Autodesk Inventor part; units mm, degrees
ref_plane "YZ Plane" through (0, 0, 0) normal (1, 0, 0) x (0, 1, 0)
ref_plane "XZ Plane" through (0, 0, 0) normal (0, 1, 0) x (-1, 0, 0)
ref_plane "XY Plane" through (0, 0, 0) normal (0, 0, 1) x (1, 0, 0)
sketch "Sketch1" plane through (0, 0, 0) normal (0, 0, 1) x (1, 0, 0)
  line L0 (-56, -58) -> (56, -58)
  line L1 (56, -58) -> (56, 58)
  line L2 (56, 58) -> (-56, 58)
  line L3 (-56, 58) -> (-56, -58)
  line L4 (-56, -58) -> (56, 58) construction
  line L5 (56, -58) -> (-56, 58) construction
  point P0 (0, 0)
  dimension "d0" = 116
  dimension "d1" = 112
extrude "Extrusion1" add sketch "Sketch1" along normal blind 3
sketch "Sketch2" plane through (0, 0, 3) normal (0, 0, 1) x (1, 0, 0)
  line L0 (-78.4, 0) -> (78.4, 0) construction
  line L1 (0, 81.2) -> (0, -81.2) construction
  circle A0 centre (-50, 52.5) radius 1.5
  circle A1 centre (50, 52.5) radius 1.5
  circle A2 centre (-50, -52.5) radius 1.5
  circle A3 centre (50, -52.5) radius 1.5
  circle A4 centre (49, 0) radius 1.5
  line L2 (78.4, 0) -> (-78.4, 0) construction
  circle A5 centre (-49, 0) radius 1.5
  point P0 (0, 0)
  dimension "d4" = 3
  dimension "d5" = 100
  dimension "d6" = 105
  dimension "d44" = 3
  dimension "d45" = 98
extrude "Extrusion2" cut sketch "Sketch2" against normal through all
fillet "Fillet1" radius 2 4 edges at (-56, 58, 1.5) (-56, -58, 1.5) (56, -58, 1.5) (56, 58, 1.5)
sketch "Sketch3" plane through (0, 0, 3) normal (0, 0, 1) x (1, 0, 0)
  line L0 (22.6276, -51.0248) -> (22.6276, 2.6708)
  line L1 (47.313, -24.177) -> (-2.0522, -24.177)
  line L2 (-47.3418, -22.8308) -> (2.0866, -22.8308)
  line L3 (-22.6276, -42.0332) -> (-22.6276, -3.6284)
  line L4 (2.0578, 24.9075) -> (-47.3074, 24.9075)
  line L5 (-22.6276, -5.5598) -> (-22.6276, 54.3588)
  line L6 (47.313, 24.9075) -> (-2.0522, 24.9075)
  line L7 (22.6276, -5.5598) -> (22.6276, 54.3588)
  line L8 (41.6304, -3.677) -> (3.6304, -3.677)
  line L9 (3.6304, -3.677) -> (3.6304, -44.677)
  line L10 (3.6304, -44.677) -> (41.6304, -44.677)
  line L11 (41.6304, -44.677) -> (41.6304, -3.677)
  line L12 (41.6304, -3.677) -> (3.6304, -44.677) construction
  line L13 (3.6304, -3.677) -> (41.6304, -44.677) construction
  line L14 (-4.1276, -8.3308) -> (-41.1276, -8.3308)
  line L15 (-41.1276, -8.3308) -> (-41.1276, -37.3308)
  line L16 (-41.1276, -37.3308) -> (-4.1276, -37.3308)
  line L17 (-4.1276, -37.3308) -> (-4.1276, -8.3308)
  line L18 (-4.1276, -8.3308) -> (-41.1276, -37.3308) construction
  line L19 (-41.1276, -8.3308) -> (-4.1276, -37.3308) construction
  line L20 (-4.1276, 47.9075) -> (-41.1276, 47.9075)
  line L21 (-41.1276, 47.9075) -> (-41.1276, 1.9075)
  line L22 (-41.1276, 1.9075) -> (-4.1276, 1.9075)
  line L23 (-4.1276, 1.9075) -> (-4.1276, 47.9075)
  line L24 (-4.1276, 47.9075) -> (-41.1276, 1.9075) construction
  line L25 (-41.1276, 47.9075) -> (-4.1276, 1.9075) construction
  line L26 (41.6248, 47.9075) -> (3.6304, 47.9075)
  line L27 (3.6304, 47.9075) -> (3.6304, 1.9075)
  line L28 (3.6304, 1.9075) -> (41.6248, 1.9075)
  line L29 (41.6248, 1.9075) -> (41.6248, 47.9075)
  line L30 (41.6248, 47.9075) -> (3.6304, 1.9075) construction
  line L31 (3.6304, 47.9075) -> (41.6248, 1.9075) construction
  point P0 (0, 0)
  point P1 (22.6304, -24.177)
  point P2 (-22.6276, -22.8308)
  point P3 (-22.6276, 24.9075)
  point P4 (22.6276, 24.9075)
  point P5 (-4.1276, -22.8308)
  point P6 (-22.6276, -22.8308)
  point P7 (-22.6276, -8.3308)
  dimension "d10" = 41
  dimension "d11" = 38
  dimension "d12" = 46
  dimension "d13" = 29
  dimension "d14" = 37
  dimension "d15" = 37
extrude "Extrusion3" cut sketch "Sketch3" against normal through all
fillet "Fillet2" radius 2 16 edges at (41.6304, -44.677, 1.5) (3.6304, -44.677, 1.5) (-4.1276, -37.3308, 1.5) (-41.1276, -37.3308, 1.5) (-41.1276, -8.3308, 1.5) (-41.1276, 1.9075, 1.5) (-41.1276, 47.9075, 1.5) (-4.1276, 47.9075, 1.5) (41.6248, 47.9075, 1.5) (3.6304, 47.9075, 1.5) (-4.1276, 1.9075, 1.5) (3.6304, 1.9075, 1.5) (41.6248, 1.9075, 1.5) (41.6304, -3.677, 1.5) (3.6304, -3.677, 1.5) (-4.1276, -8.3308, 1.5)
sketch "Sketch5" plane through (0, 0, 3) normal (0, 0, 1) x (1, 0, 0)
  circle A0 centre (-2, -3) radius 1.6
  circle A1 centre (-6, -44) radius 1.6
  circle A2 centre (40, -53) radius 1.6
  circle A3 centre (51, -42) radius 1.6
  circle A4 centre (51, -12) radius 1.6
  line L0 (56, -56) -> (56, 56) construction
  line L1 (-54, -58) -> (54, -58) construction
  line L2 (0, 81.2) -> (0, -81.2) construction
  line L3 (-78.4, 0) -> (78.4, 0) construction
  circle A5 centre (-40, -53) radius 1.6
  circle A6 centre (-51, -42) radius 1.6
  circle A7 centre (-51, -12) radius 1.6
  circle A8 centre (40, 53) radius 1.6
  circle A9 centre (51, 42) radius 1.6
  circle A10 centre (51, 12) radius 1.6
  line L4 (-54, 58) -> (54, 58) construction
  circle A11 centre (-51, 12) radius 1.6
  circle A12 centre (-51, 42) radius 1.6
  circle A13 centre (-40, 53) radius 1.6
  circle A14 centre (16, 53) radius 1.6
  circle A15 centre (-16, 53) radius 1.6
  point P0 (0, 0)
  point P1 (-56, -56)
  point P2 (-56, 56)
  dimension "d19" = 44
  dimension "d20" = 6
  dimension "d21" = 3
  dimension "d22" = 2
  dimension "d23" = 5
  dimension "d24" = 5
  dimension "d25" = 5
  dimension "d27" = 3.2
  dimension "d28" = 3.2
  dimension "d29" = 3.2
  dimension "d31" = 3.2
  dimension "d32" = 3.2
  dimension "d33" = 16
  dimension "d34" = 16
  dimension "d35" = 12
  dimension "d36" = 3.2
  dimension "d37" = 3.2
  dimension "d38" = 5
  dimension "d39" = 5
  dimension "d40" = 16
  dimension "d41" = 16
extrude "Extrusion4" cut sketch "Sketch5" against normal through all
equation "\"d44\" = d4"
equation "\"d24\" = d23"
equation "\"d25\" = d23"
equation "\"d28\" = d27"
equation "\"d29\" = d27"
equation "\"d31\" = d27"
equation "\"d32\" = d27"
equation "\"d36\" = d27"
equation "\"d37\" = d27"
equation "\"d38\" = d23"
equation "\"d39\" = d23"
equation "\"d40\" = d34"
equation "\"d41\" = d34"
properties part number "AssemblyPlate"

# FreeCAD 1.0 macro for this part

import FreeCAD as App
import Part
import Sketcher

V = App.Vector
Q = App.Units.Quantity


def edges_at(feature, points):
    """Names of the edges that pass closest to the given points."""
    edges = feature.Shape.Edges
    near = lambda p: min(range(len(edges)), key=lambda i: edges[i].distToShape(Part.Vertex(*p))[0])
    return sorted({f"Edge{near(p) + 1}" for p in points})


def add_polygon(sketch, points):
    """Adds a closed chain of lines whose ends are joined by coincident constraints."""
    first, n = sketch.GeometryCount, len(points)
    for a, b in zip(points, points[1:] + points[:1]):
        sketch.addGeometry(Part.LineSegment(App.Vector(*a, 0), App.Vector(*b, 0)), False)
    for i in range(n):
        sketch.addConstraint(Sketcher.Constraint("Coincident", first + i, 2, first + (i + 1) % n, 1))

doc = App.newDocument("Part")
body = doc.addObject("PartDesign::Body", "Body")

# Sketch on XY plane
sketch1 = doc.addObject("Sketcher::SketchObject", "Sketch")
body.addObject(sketch1)
sketch1.AttachmentSupport = (doc.XY_Plane, [""])
sketch1.MapMode = "FlatFace"
add_polygon(sketch1, [(-56, 58), (-56, -58), (56, -58), (56, 58)])  # lines 0-3
sketch1.addConstraint([
    Sketcher.Constraint("Vertical", 0),
    Sketcher.Constraint("Horizontal", 1),
    Sketcher.Constraint("Vertical", 2),
    Sketcher.Constraint("Horizontal", 3),
    Sketcher.Constraint("Symmetric", 0, 2, 2, 2, -1, 1),
    Sketcher.Constraint("DistanceX", 1, 1, 1, 2, Q("112 mm")),
    Sketcher.Constraint("DistanceY", 0, 2, 0, 1, Q("116 mm")),
])
pad1 = doc.addObject("PartDesign::Pad", "Pad")
body.addObject(pad1)
pad1.Profile = sketch1
pad1.Length = 3

# Sketch on XY plane
sketch2 = doc.addObject("Sketcher::SketchObject", "Sketch001")
body.addObject(sketch2)
sketch2.AttachmentSupport = (doc.XY_Plane, [""])
sketch2.MapMode = "FlatFace"
sketch2.AttachmentOffset = App.Placement(V(0, 0, 3), App.Rotation())
sketch2.addGeometry([
    Part.Circle(V(-50, 52.5, 0), V(0, 0, 1), 1.5),  # 0
    Part.Circle(V(50, 52.5, 0), V(0, 0, 1), 1.5),  # 1
    Part.Circle(V(-50, -52.5, 0), V(0, 0, 1), 1.5),  # 2
    Part.Circle(V(50, -52.5, 0), V(0, 0, 1), 1.5),  # 3
    Part.Circle(V(49, 0, 0), V(0, 0, 1), 1.5),  # 4
    Part.Circle(V(-49, 0, 0), V(0, 0, 1), 1.5),  # 5
], False)
sketch2.addConstraint([
    Sketcher.Constraint("Equal", 0, 1),
    Sketcher.Constraint("Equal", 1, 2),
    Sketcher.Constraint("Equal", 2, 3),
    Sketcher.Constraint("Equal", 3, 4),
    Sketcher.Constraint("Equal", 4, 5),
    Sketcher.Constraint("Symmetric", 1, 3, 2, 3, -1, 1),
    Sketcher.Constraint("Symmetric", 0, 3, 3, 3, -1, 1),
    Sketcher.Constraint("Symmetric", 4, 3, 5, 3, -1, 1),
    Sketcher.Constraint("Symmetric", 0, 3, 1, 3, -2),
    Sketcher.Constraint("PointOnObject", 4, 3, -1),
    Sketcher.Constraint("Diameter", 0, Q("3 mm")),
    Sketcher.Constraint("DistanceX", 0, 3, 1, 3, Q("100 mm")),
    Sketcher.Constraint("DistanceY", 2, 3, 0, 3, Q("105 mm")),
    Sketcher.Constraint("DistanceX", 5, 3, 4, 3, Q("98 mm")),
])
pocket1 = doc.addObject("PartDesign::Pocket", "Pocket")
body.addObject(pocket1)
pocket1.Profile = sketch2
pocket1.Type = "ThroughAll"
doc.recompute()

fillet = doc.addObject("PartDesign::Fillet", "Fillet")
body.addObject(fillet)
fillet.Base = (pocket1, edges_at(pocket1, [
    (-56, 58, 1.5),
    (-56, -58, 1.5),
    (56, -58, 1.5),
    (56, 58, 1.5),
]))
fillet.Radius = 2

# Sketch on XY plane
sketch3 = doc.addObject("Sketcher::SketchObject", "Sketch002")
body.addObject(sketch3)
sketch3.AttachmentSupport = (doc.XY_Plane, [""])
sketch3.MapMode = "FlatFace"
sketch3.AttachmentOffset = App.Placement(V(0, 0, 3), App.Rotation())
add_polygon(sketch3, [(4, -45), (42, -45), (42, -4), (4, -4)])  # lines 0-3
add_polygon(sketch3, [(-4, -8), (-41, -8), (-41, -37), (-4, -37)])  # lines 4-7
add_polygon(sketch3, [(-4, 2), (-4, 48), (-41, 48), (-41, 2)])  # lines 8-11
add_polygon(sketch3, [(4, 2), (42, 2), (42, 48), (4, 48)])  # lines 12-15
sketch3.addConstraint([
    Sketcher.Constraint("Horizontal", 0),
    Sketcher.Constraint("Vertical", 1),
    Sketcher.Constraint("Horizontal", 2),
    Sketcher.Constraint("Vertical", 3),
    Sketcher.Constraint("Horizontal", 4),
    Sketcher.Constraint("Vertical", 5),
    Sketcher.Constraint("Horizontal", 6),
    Sketcher.Constraint("Vertical", 7),
    Sketcher.Constraint("Vertical", 8),
    Sketcher.Constraint("Horizontal", 9),
    Sketcher.Constraint("Vertical", 10),
    Sketcher.Constraint("Horizontal", 11),
    Sketcher.Constraint("Horizontal", 12),
    Sketcher.Constraint("Vertical", 13),
    Sketcher.Constraint("Horizontal", 14),
    Sketcher.Constraint("Vertical", 15),
    Sketcher.Constraint("Horizontal", 11, 2, 12, 2),
    Sketcher.Constraint("Horizontal", 9, 2, 13, 2),
    Sketcher.Constraint("Vertical", 7, 2, 8, 2),
    Sketcher.Constraint("Vertical", 5, 2, 9, 2),
    Sketcher.Constraint("Vertical", 3, 2, 14, 2),
    Sketcher.Constraint("DistanceX", 0, 1, 0, 2, Q("38 mm")),
    Sketcher.Constraint("DistanceX", 4, 2, 4, 1, Q("37 mm")),
    Sketcher.Constraint("DistanceY", 1, 1, 1, 2, Q("41 mm")),
    Sketcher.Constraint("DistanceY", 5, 2, 5, 1, Q("29 mm")),
    Sketcher.Constraint("DistanceY", 8, 1, 8, 2, Q("46 mm")),
    Sketcher.Constraint("DistanceX", 12, 1, 12, 2, Q("37.9944 mm")),
    Sketcher.Constraint("DistanceY", 0, 2, -1, 1, Q("44.677 mm")),
    Sketcher.Constraint("DistanceX", 4, 2, 2, 2, Q("44.758 mm")),
    Sketcher.Constraint("DistanceX", -1, 1, 0, 2, Q("41.6304 mm")),
    Sketcher.Constraint("DistanceY", 4, 2, -1, 1, Q("8.3308 mm")),
    Sketcher.Constraint("DistanceY", -1, 1, 8, 2, Q("47.9075 mm")),
])
pocket2 = doc.addObject("PartDesign::Pocket", "Pocket001")
body.addObject(pocket2)
pocket2.Profile = sketch3
pocket2.Type = "ThroughAll"
doc.recompute()

fillet2 = doc.addObject("PartDesign::Fillet", "Fillet001")
body.addObject(fillet2)
fillet2.Base = (pocket2, edges_at(pocket2, [
    (41.63, -44.677, 1.5),
    (3.63, -44.677, 1.5),
    (-4.128, -37.331, 1.5),
    (-41.128, -37.331, 1.5),
    (-41.128, -8.331, 1.5),
    (-41.128, 1.907, 1.5),
    (-41.128, 47.907, 1.5),
    (-4.128, 47.907, 1.5),
    (41.625, 47.907, 1.5),
    (3.63, 47.907, 1.5),
    (-4.128, 1.907, 1.5),
    (3.63, 1.907, 1.5),
    (41.625, 1.907, 1.5),
    (41.63, -3.677, 1.5),
    (3.63, -3.677, 1.5),
    (-4.128, -8.331, 1.5),
]))
fillet2.Radius = 2

# Sketch on XY plane
sketch4 = doc.addObject("Sketcher::SketchObject", "Sketch003")
body.addObject(sketch4)
sketch4.AttachmentSupport = (doc.XY_Plane, [""])
sketch4.MapMode = "FlatFace"
sketch4.AttachmentOffset = App.Placement(V(0, 0, 3), App.Rotation())
sketch4.addGeometry([
    Part.Circle(V(-2, -3, 0), V(0, 0, 1), 1.6),  # 0
    Part.Circle(V(-6, -44, 0), V(0, 0, 1), 1.6),  # 1
    Part.Circle(V(40, -53, 0), V(0, 0, 1), 1.6),  # 2
    Part.Circle(V(51, -42, 0), V(0, 0, 1), 1.6),  # 3
    Part.Circle(V(51, -12, 0), V(0, 0, 1), 1.6),  # 4
    Part.Circle(V(-40, -53, 0), V(0, 0, 1), 1.6),  # 5
    Part.Circle(V(-51, -42, 0), V(0, 0, 1), 1.6),  # 6
    Part.Circle(V(-51, -12, 0), V(0, 0, 1), 1.6),  # 7
    Part.Circle(V(40, 53, 0), V(0, 0, 1), 1.6),  # 8
    Part.Circle(V(51, 42, 0), V(0, 0, 1), 1.6),  # 9
    Part.Circle(V(51, 12, 0), V(0, 0, 1), 1.6),  # 10
    Part.Circle(V(-51, 12, 0), V(0, 0, 1), 1.6),  # 11
    Part.Circle(V(-51, 42, 0), V(0, 0, 1), 1.6),  # 12
    Part.Circle(V(-40, 53, 0), V(0, 0, 1), 1.6),  # 13
    Part.Circle(V(16, 53, 0), V(0, 0, 1), 1.6),  # 14
    Part.Circle(V(-16, 53, 0), V(0, 0, 1), 1.6),  # 15
], False)
sketch4.addConstraint([
    Sketcher.Constraint("Equal", 0, 1),
    Sketcher.Constraint("Equal", 1, 2),
    Sketcher.Constraint("Equal", 2, 3),
    Sketcher.Constraint("Equal", 3, 4),
    Sketcher.Constraint("Equal", 4, 5),
    Sketcher.Constraint("Equal", 5, 6),
    Sketcher.Constraint("Equal", 6, 7),
    Sketcher.Constraint("Equal", 7, 8),
    Sketcher.Constraint("Equal", 8, 9),
    Sketcher.Constraint("Equal", 9, 10),
    Sketcher.Constraint("Equal", 10, 11),
    Sketcher.Constraint("Equal", 11, 12),
    Sketcher.Constraint("Equal", 12, 13),
    Sketcher.Constraint("Equal", 13, 14),
    Sketcher.Constraint("Equal", 14, 15),
    Sketcher.Constraint("Symmetric", 5, 3, 8, 3, -1, 1),
    Sketcher.Constraint("Symmetric", 6, 3, 9, 3, -1, 1),
    Sketcher.Constraint("Symmetric", 7, 3, 10, 3, -1, 1),
    Sketcher.Constraint("Symmetric", 4, 3, 11, 3, -1, 1),
    Sketcher.Constraint("Symmetric", 3, 3, 12, 3, -1, 1),
    Sketcher.Constraint("Symmetric", 2, 3, 13, 3, -1, 1),
    Sketcher.Constraint("Symmetric", 2, 3, 5, 3, -2),
    Sketcher.Constraint("Symmetric", 3, 3, 6, 3, -2),
    Sketcher.Constraint("Symmetric", 4, 3, 7, 3, -2),
    Sketcher.Constraint("Symmetric", 14, 3, 15, 3, -2),
    Sketcher.Constraint("Horizontal", 13, 3, 14, 3),
    Sketcher.Constraint("Vertical", 3, 3, 4, 3),
    Sketcher.Constraint("Diameter", 0, Q("3.2 mm")),
    Sketcher.Constraint("DistanceX", 0, 3, -1, 1, Q("2 mm")),
    Sketcher.Constraint("DistanceY", 0, 3, -1, 1, Q("3 mm")),
    Sketcher.Constraint("DistanceX", 1, 3, -1, 1, Q("6 mm")),
    Sketcher.Constraint("DistanceY", 1, 3, -1, 1, Q("44 mm")),
    Sketcher.Constraint("DistanceY", 4, 3, -1, 1, Q("12 mm")),
    Sketcher.Constraint("DistanceX", -1, 1, 14, 3, Q("16 mm")),
    Sketcher.Constraint("DistanceY", 1, 3, 3, 3, Q("2 mm")),
    Sketcher.Constraint("DistanceX", -1, 1, 2, 3, Q("40 mm")),
    Sketcher.Constraint("DistanceY", 2, 3, -1, 1, Q("53 mm")),
    Sketcher.Constraint("DistanceX", -1, 1, 3, 3, Q("51 mm")),
])
pocket3 = doc.addObject("PartDesign::Pocket", "Pocket002")
body.addObject(pocket3)
pocket3.Profile = sketch4
pocket3.Type = "ThroughAll"

doc.recompute()
